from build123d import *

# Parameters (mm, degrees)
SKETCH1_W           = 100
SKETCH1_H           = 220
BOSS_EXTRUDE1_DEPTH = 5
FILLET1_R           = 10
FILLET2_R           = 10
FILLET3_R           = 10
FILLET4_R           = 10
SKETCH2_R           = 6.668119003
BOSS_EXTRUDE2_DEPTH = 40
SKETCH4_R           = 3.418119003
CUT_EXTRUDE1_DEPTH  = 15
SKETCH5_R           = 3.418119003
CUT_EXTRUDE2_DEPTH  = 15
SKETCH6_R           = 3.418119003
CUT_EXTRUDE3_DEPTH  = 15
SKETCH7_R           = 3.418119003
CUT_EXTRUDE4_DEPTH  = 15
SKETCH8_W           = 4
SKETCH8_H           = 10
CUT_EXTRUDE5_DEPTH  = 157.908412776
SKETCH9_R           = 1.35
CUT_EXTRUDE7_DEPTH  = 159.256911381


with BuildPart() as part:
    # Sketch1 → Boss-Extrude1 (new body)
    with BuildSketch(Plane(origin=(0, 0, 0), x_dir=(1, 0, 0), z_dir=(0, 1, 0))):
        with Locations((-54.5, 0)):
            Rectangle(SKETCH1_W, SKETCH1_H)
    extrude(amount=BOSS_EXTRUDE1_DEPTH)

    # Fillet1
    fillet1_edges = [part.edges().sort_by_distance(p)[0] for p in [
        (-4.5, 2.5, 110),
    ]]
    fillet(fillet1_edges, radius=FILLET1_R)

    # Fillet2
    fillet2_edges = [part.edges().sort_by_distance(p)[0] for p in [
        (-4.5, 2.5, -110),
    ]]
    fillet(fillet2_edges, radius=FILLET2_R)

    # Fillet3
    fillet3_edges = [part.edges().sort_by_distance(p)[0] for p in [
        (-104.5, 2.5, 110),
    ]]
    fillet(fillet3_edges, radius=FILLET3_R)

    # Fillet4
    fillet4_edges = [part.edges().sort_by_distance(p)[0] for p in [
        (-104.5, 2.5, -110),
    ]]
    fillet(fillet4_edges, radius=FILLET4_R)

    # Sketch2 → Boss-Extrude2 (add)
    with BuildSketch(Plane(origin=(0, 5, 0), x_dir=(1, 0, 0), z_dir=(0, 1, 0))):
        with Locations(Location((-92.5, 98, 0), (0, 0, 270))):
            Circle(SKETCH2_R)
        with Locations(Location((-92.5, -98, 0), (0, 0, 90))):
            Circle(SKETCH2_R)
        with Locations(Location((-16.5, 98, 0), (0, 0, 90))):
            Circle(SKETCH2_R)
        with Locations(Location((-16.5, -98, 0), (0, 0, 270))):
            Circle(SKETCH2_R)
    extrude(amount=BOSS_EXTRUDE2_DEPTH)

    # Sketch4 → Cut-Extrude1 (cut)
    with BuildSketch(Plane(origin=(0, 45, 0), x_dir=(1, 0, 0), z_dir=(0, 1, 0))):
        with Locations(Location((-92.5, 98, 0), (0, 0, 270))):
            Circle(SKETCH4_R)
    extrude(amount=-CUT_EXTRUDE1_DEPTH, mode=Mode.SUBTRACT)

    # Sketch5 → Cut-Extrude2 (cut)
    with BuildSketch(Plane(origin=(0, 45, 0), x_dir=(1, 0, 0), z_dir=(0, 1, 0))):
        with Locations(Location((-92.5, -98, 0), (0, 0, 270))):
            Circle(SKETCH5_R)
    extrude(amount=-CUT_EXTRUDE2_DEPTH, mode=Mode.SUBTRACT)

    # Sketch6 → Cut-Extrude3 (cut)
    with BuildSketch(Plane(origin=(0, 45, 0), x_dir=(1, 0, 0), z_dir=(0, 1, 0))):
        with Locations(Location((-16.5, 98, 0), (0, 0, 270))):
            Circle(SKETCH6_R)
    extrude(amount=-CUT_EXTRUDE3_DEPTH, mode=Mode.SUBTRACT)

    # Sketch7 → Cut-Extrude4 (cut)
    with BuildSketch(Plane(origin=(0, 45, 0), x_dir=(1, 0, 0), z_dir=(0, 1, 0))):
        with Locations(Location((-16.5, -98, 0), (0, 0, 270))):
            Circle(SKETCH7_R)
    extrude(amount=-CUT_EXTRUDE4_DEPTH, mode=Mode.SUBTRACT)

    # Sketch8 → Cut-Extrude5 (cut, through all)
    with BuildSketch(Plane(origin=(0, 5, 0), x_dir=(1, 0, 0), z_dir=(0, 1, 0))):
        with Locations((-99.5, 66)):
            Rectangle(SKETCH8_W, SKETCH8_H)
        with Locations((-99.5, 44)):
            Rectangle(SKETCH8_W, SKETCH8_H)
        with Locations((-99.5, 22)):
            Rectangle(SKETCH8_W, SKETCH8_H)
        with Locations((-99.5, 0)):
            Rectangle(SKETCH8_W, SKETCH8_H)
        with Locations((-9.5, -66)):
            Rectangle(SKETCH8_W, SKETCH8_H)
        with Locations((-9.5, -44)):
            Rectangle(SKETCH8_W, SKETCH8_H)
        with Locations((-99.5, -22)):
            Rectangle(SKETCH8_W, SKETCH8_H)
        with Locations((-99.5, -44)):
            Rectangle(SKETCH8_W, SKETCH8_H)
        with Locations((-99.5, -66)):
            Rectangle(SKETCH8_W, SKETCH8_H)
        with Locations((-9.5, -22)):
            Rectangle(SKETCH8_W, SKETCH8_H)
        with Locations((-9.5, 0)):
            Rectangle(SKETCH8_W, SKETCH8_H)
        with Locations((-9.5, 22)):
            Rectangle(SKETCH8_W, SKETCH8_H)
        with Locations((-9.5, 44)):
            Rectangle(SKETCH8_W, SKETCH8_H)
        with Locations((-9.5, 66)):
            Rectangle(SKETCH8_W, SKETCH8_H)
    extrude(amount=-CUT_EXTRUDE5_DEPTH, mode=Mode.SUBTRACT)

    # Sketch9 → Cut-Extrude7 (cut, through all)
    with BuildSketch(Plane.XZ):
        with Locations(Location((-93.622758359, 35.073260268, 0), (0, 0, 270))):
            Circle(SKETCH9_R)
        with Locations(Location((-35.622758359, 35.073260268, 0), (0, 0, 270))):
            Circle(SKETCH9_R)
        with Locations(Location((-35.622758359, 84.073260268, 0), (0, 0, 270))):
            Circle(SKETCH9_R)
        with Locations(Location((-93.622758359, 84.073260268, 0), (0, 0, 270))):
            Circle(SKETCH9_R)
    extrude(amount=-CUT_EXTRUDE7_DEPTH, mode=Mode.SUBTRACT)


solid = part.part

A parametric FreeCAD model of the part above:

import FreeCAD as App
import Part
import Sketcher
from FreeCAD import Vector
Q = App.Units.Quantity


def edges_at(feature, points):
    """Names of the edges that pass closest to the given points."""
    edges = feature.Shape.Edges
    near = lambda p: min(range(len(edges)), key=lambda i: edges[i].distToShape(Part.Vertex(*p))[0])
    return sorted({f"Edge{near(p) + 1}" for p in points})


def add_polygon(sketch, points):
    """Adds a closed chain of lines whose ends are joined by coincident constraints."""
    first, n = sketch.GeometryCount, len(points)
    for a, b in zip(points, points[1:] + points[:1]):
        sketch.addGeometry(Part.LineSegment(App.Vector(*a, 0), App.Vector(*b, 0)), False)
    for i in range(n):
        sketch.addConstraint(Sketcher.Constraint("Coincident", first + i, 2, first + (i + 1) % n, 1))

doc = App.newDocument("Part")
body = doc.addObject("PartDesign::Body", "Body")

# Sketch on XZ plane
sketch1 = body.newObject("Sketcher::SketchObject", "Sketch")
sketch1.AttachmentSupport = (doc.getObject("XZ_Plane"), [""])
sketch1.MapMode = "FlatFace"
add_polygon(sketch1, [(-104.5, -110), (-104.5, 110), (-4.5, 110), (-4.5, -110)])  # lines 0-3
sketch1.addConstraint([
    Sketcher.Constraint("Vertical", 0),
    Sketcher.Constraint("Horizontal", 1),
    Sketcher.Constraint("Vertical", 2),
    Sketcher.Constraint("Horizontal", 3),
    Sketcher.Constraint("DistanceX", 1, 1, 1, 2, Q("100 mm")),
    Sketcher.Constraint("DistanceY", 0, 1, 0, 2, Q("220 mm")),
    Sketcher.Constraint("DistanceY", -1, 1, 0, 2, Q("110 mm")),
    Sketcher.Constraint("DistanceX", 0, 2, -1, 1, Q("104.5 mm")),
])
pad1 = body.newObject("PartDesign::Pad", "Pad")
pad1.Profile = sketch1
pad1.Length = 5
pad1.Reversed = True
doc.recompute()

fillet = body.newObject("PartDesign::Fillet", "Fillet")
fillet.Base = (pad1, edges_at(pad1, [(-4.5, 2.5, 110)]))
fillet.Radius = 10
doc.recompute()

fillet2 = body.newObject("PartDesign::Fillet", "Fillet001")
fillet2.Base = (fillet, edges_at(fillet, [(-4.5, 2.5, -110)]))
fillet2.Radius = 10
doc.recompute()

fillet3 = body.newObject("PartDesign::Fillet", "Fillet002")
fillet3.Base = (fillet2, edges_at(fillet2, [(-104.5, 2.5, 110)]))
fillet3.Radius = 10
doc.recompute()

fillet4 = body.newObject("PartDesign::Fillet", "Fillet003")
fillet4.Base = (fillet3, edges_at(fillet3, [(-104.5, 2.5, -110)]))
fillet4.Radius = 10

# Sketch on XZ plane
sketch2 = body.newObject("Sketcher::SketchObject", "Sketch001")
sketch2.AttachmentSupport = (doc.getObject("XZ_Plane"), [""])
sketch2.MapMode = "FlatFace"
sketch2.AttachmentOffset = App.Placement(Vector(0, 0, -5), App.Rotation())
sketch2.addGeometry([
    Part.Circle(Vector(-92.5, -98, 0), Vector(0, 0, 1), 6.668119),
    Part.Circle(Vector(-92.5, 98, 0), Vector(0, 0, 1), 6.668119),
    Part.Circle(Vector(-16.5, -98, 0), Vector(0, 0, 1), 6.668119),
    Part.Circle(Vector(-16.5, 98, 0), Vector(0, 0, 1), 6.668119),
], False)
sketch2.addConstraint([
    Sketcher.Constraint("Equal", 0, 1),
    Sketcher.Constraint("Equal", 1, 2),
    Sketcher.Constraint("Equal", 2, 3),
    Sketcher.Constraint("Symmetric", 0, 3, 1, 3, -1),
    Sketcher.Constraint("Symmetric", 2, 3, 3, 3, -1),
    Sketcher.Constraint("Horizontal", 0, 3, 2, 3),
    Sketcher.Constraint("DistanceY", 0, 3, -1, 1, Q("98 mm")),
    Sketcher.Constraint("DistanceX", 0, 3, 2, 3, Q("76 mm")),
    Sketcher.Constraint("DistanceX", 0, 3, -1, 1, Q("92.5 mm")),
    Sketcher.Constraint("Diameter", 0, Q("13.336238 mm")),
])
pad2 = body.newObject("PartDesign::Pad", "Pad001")
pad2.Profile = sketch2
pad2.Length = 40
pad2.Reversed = True

# Sketch on XZ plane
sketch3 = body.newObject("Sketcher::SketchObject", "Sketch002")
sketch3.AttachmentSupport = (doc.getObject("XZ_Plane"), [""])
sketch3.MapMode = "FlatFace"
sketch3.AttachmentOffset = App.Placement(Vector(0, 0, -45), App.Rotation())
sketch3.addGeometry(Part.Circle(Vector(-92.5, -98, 0), Vector(0, 0, 1), 3.418119), False)
sketch3.addConstraint([
    Sketcher.Constraint("DistanceY", 0, 3, -1, 1, Q("98 mm")),
    Sketcher.Constraint("DistanceX", 0, 3, -1, 1, Q("92.5 mm")),
    Sketcher.Constraint("Diameter", 0, Q("6.836238 mm")),
])
pocket1 = body.newObject("PartDesign::Pocket", "Pocket")
pocket1.Profile = sketch3
pocket1.Length = 15
pocket1.Reversed = True

# Sketch on XZ plane
sketch4 = body.newObject("Sketcher::SketchObject", "Sketch003")
sketch4.AttachmentSupport = (doc.getObject("XZ_Plane"), [""])
sketch4.MapMode = "FlatFace"
sketch4.AttachmentOffset = App.Placement(Vector(0, 0, -45), App.Rotation())
sketch4.addGeometry(Part.Circle(Vector(-92.5, 98, 0), Vector(0, 0, 1), 3.418119), False)
sketch4.addConstraint([
    Sketcher.Constraint("DistanceY", -1, 1, 0, 3, Q("98 mm")),
    Sketcher.Constraint("DistanceX", 0, 3, -1, 1, Q("92.5 mm")),
    Sketcher.Constraint("Diameter", 0, Q("6.836238 mm")),
])
pocket2 = body.newObject("PartDesign::Pocket", "Pocket001")
pocket2.Profile = sketch4
pocket2.Length = 15
pocket2.Reversed = True

# Sketch on XZ plane
sketch5 = body.newObject("Sketcher::SketchObject", "Sketch004")
sketch5.AttachmentSupport = (doc.getObject("XZ_Plane"), [""])
sketch5.MapMode = "FlatFace"
sketch5.AttachmentOffset = App.Placement(Vector(0, 0, -45), App.Rotation())
sketch5.addGeometry(Part.Circle(Vector(-16.5, -98, 0), Vector(0, 0, 1), 3.418119), False)
sketch5.addConstraint([
    Sketcher.Constraint("DistanceY", 0, 3, -1, 1, Q("98 mm")),
    Sketcher.Constraint("DistanceX", 0, 3, -1, 1, Q("16.5 mm")),
    Sketcher.Constraint("Diameter", 0, Q("6.836238 mm")),
])
pocket3 = body.newObject("PartDesign::Pocket", "Pocket002")
pocket3.Profile = sketch5
pocket3.Length = 15
pocket3.Reversed = True

# Sketch on XZ plane
sketch6 = body.newObject("Sketcher::SketchObject", "Sketch005")
sketch6.AttachmentSupport = (doc.getObject("XZ_Plane"), [""])
sketch6.MapMode = "FlatFace"
sketch6.AttachmentOffset = App.Placement(Vector(0, 0, -45), App.Rotation())
sketch6.addGeometry(Part.Circle(Vector(-16.5, 98, 0), Vector(0, 0, 1), 3.418119), False)
sketch6.addConstraint([
    Sketcher.Constraint("DistanceY", -1, 1, 0, 3, Q("98 mm")),
    Sketcher.Constraint("DistanceX", 0, 3, -1, 1, Q("16.5 mm")),
    Sketcher.Constraint("Diameter", 0, Q("6.836238 mm")),
])
pocket4 = body.newObject("PartDesign::Pocket", "Pocket003")
pocket4.Profile = sketch6
pocket4.Length = 15
pocket4.Reversed = True

# Sketch on XZ plane
sketch7 = body.newObject("Sketcher::SketchObject", "Sketch006")
sketch7.AttachmentSupport = (doc.getObject("XZ_Plane"), [""])
sketch7.MapMode = "FlatFace"
sketch7.AttachmentOffset = App.Placement(Vector(0, 0, -5), App.Rotation())
add_polygon(sketch7, [(-101.5, -71), (-101.5, -61), (-97.5, -61), (-97.5, -71)])  # lines 0-3
add_polygon(sketch7, [(-101.5, -49), (-101.5, -39), (-97.5, -39), (-97.5, -49)])  # lines 4-7
add_polygon(sketch7, [(-101.5, -27), (-101.5, -17), (-97.5, -17), (-97.5, -27)])  # lines 8-11
add_polygon(sketch7, [(-101.5, -5), (-101.5, 5), (-97.5, 5), (-97.5, -5)])  # lines 12-15
add_polygon(sketch7, [(-11.5, 61), (-11.5, 71), (-7.5, 71), (-7.5, 61)])  # lines 16-19
add_polygon(sketch7, [(-11.5, 39), (-11.5, 49), (-7.5, 49), (-7.5, 39)])  # lines 20-23
add_polygon(sketch7, [(-101.5, 17), (-101.5, 27), (-97.5, 27), (-97.5, 17)])  # lines 24-27
add_polygon(sketch7, [(-101.5, 39), (-101.5, 49), (-97.5, 49), (-97.5, 39)])  # lines 28-31
add_polygon(sketch7, [(-101.5, 61), (-101.5, 71), (-97.5, 71), (-97.5, 61)])  # lines 32-35
add_polygon(sketch7, [(-11.5, 17), (-11.5, 27), (-7.5, 27), (-7.5, 17)])  # lines 36-39
add_polygon(sketch7, [(-11.5, -5), (-11.5, 5), (-7.5, 5), (-7.5, -5)])  # lines 40-43
add_polygon(sketch7, [(-11.5, -27), (-11.5, -17), (-7.5, -17), (-7.5, -27)])  # lines 44-47
add_polygon(sketch7, [(-11.5, -49), (-11.5, -39), (-7.5, -39), (-7.5, -49)])  # lines 48-51
add_polygon(sketch7, [(-11.5, -71), (-11.5, -61), (-7.5, -61), (-7.5, -71)])  # lines 52-55
sketch7.addConstraint([
    Sketcher.Constraint("Vertical", 0),
    Sketcher.Constraint("Horizontal", 1),
    Sketcher.Constraint("Vertical", 2),
    Sketcher.Constraint("Horizontal", 3),
    Sketcher.Constraint("Vertical", 4),
    Sketcher.Constraint("Horizontal", 5),
    Sketcher.Constraint("Vertical", 6),
    Sketcher.Constraint("Horizontal", 7),
    Sketcher.Constraint("Vertical", 8),
    Sketcher.Constraint("Horizontal", 9),
    Sketcher.Constraint("Vertical", 10),
    Sketcher.Constraint("Horizontal", 11),
    Sketcher.Constraint("Vertical", 12),
    Sketcher.Constraint("Horizontal", 13),
    Sketcher.Constraint("Vertical", 14),
    Sketcher.Constraint("Horizontal", 15),
    Sketcher.Constraint("Vertical", 16),
    Sketcher.Constraint("Horizontal", 17),
    Sketcher.Constraint("Vertical", 18),
    Sketcher.Constraint("Horizontal", 19),
    Sketcher.Constraint("Vertical", 20),
    Sketcher.Constraint("Horizontal", 21),
    Sketcher.Constraint("Vertical", 22),
    Sketcher.Constraint("Horizontal", 23),
    Sketcher.Constraint("Vertical", 24),
    Sketcher.Constraint("Horizontal", 25),
    Sketcher.Constraint("Vertical", 26),
    Sketcher.Constraint("Horizontal", 27),
    Sketcher.Constraint("Vertical", 28),
    Sketcher.Constraint("Horizontal", 29),
    Sketcher.Constraint("Vertical", 30),
    Sketcher.Constraint("Horizontal", 31),
    Sketcher.Constraint("Vertical", 32),
    Sketcher.Constraint("Horizontal", 33),
    Sketcher.Constraint("Vertical", 34),
    Sketcher.Constraint("Horizontal", 35),
    Sketcher.Constraint("Vertical", 36),
    Sketcher.Constraint("Horizontal", 37),
    Sketcher.Constraint("Vertical", 38),
    Sketcher.Constraint("Horizontal", 39),
    Sketcher.Constraint("Vertical", 40),
    Sketcher.Constraint("Horizontal", 41),
    Sketcher.Constraint("Vertical", 42),
    Sketcher.Constraint("Horizontal", 43),
    Sketcher.Constraint("Vertical", 44),
    Sketcher.Constraint("Horizontal", 45),
    Sketcher.Constraint("Vertical", 46),
    Sketcher.Constraint("Horizontal", 47),
    Sketcher.Constraint("Vertical", 48),
    Sketcher.Constraint("Horizontal", 49),
    Sketcher.Constraint("Vertical", 50),
    Sketcher.Constraint("Horizontal", 51),
    Sketcher.Constraint("Vertical", 52),
    Sketcher.Constraint("Horizontal", 53),
    Sketcher.Constraint("Vertical", 54),
    Sketcher.Constraint("Horizontal", 55),
    Sketcher.Constraint("Symmetric", 11, 2, 24, 2, -1),
    Sketcher.Constraint("Symmetric", 9, 2, 26, 2, -1),
    Sketcher.Constraint("Symmetric", 7, 2, 28, 2, -1),
    Sketcher.Constraint("Symmetric", 5, 2, 30, 2, -1),
    Sketcher.Constraint("Symmetric", 3, 2, 32, 2, -1),
    Sketcher.Constraint("Symmetric", 1, 2, 34, 2, -1),
    Sketcher.Constraint("Symmetric", 39, 2, 44, 2, -1),
    Sketcher.Constraint("Symmetric", 37, 2, 46, 2, -1),
    Sketcher.Constraint("Symmetric", 23, 2, 48, 2, -1),
    Sketcher.Constraint("Symmetric", 21, 2, 50, 2, -1),
    Sketcher.Constraint("Symmetric", 19, 2, 52, 2, -1),
    Sketcher.Constraint("Symmetric", 17, 2, 54, 2, -1),
    Sketcher.Constraint("Horizontal", 21, 2, 28, 2),
    Sketcher.Constraint("Horizontal", 23, 2, 30, 2),
    Sketcher.Constraint("Horizontal", 17, 2, 32, 2),
    Sketcher.Constraint("Horizontal", 19, 2, 34, 2),
    Sketcher.Constraint("Horizontal", 25, 2, 36, 2),
    Sketcher.Constraint("Horizontal", 27, 2, 38, 2),
    Sketcher.Constraint("Horizontal", 13, 2, 40, 2),
    Sketcher.Constraint("Horizontal", 15, 2, 42, 2),
    Sketcher.Constraint("Vertical", 3, 2, 4, 2),
    Sketcher.Constraint("Vertical", 2, 2, 5, 2),
    Sketcher.Constraint("Vertical", 7, 2, 8, 2),
    Sketcher.Constraint("Vertical", 6, 2, 9, 2),
    Sketcher.Constraint("Vertical", 11, 2, 12, 2),
    Sketcher.Constraint("Vertical", 10, 2, 13, 2),
    Sketcher.Constraint("Vertical", 19, 2, 20, 2),
    Sketcher.Constraint("Vertical", 18, 2, 21, 2),
    Sketcher.Constraint("Vertical", 23, 2, 36, 2),
    Sketcher.Constraint("Vertical", 22, 2, 37, 2),
    Sketcher.Constraint("Vertical", 39, 2, 40, 2),
    Sketcher.Constraint("Vertical", 38, 2, 41, 2),
    Sketcher.Constraint("Equal", 15, 17),
    Sketcher.Constraint("Equal", 2, 4),
    Sketcher.Constraint("Equal", 6, 8),
    Sketcher.Constraint("Equal", 10, 12),
    Sketcher.Constraint("DistanceX", 1, 1, 1, 2, Q("4 mm")),
    Sketcher.Constraint("DistanceY", 0, 1, 0, 2, Q("10 mm")),
    Sketcher.Constraint("DistanceY", 0, 2, -1, 1, Q("61 mm")),
    Sketcher.Constraint("DistanceY", 4, 2, -1, 1, Q("39 mm")),
    Sketcher.Constraint("DistanceY", 8, 2, -1, 1, Q("17 mm")),
    Sketcher.Constraint("DistanceY", -1, 1, 12, 2, Q("5 mm")),
    Sketcher.Constraint("DistanceX", 13, 2, 16, 2, Q("86 mm")),
    Sketcher.Constraint("DistanceX", 0, 2, -1, 1, Q("101.5 mm")),
])
pocket5 = body.newObject("PartDesign::Pocket", "Pocket004")
pocket5.Profile = sketch7
pocket5.Type = "ThroughAll"
pocket5.Reversed = True

# Sketch on XZ plane
sketch8 = body.newObject("Sketcher::SketchObject", "Sketch007")
sketch8.AttachmentSupport = (doc.getObject("XZ_Plane"), [""])
sketch8.MapMode = "FlatFace"
sketch8.addGeometry([
    Part.Circle(Vector(-93.622758, 35.07326, 0), Vector(0, 0, 1), 1.35),
    Part.Circle(Vector(-35.622758, 35.07326, 0), Vector(0, 0, 1), 1.35),
    Part.Circle(Vector(-35.622758, 84.07326, 0), Vector(0, 0, 1), 1.35),
    Part.Circle(Vector(-93.622758, 84.07326, 0), Vector(0, 0, 1), 1.35),
], False)
sketch8.addConstraint([
    Sketcher.Constraint("Equal", 0, 1),
    Sketcher.Constraint("Equal", 1, 2),
    Sketcher.Constraint("Equal", 2, 3),
    Sketcher.Constraint("Horizontal", 0, 3, 1, 3),
    Sketcher.Constraint("Horizontal", 2, 3, 3, 3),
    Sketcher.Constraint("Vertical", 1, 3, 2, 3),
    Sketcher.Constraint("Vertical", 0, 3, 3, 3),
    Sketcher.Constraint("Diameter", 0, Q("2.7 mm")),
    Sketcher.Constraint("DistanceX", 0, 3, 1, 3, Q("58 mm")),
    Sketcher.Constraint("DistanceY", 1, 3, 2, 3, Q("49 mm")),
    Sketcher.Constraint("DistanceX", 0, 3, -1, 1, Q("93.622758 mm")),
    Sketcher.Constraint("DistanceY", -1, 1, 0, 3, Q("35.07326 mm")),
])
pocket6 = body.newObject("PartDesign::Pocket", "Pocket005")
pocket6.Profile = sketch8
pocket6.Type = "ThroughAll"

doc.recompute()
